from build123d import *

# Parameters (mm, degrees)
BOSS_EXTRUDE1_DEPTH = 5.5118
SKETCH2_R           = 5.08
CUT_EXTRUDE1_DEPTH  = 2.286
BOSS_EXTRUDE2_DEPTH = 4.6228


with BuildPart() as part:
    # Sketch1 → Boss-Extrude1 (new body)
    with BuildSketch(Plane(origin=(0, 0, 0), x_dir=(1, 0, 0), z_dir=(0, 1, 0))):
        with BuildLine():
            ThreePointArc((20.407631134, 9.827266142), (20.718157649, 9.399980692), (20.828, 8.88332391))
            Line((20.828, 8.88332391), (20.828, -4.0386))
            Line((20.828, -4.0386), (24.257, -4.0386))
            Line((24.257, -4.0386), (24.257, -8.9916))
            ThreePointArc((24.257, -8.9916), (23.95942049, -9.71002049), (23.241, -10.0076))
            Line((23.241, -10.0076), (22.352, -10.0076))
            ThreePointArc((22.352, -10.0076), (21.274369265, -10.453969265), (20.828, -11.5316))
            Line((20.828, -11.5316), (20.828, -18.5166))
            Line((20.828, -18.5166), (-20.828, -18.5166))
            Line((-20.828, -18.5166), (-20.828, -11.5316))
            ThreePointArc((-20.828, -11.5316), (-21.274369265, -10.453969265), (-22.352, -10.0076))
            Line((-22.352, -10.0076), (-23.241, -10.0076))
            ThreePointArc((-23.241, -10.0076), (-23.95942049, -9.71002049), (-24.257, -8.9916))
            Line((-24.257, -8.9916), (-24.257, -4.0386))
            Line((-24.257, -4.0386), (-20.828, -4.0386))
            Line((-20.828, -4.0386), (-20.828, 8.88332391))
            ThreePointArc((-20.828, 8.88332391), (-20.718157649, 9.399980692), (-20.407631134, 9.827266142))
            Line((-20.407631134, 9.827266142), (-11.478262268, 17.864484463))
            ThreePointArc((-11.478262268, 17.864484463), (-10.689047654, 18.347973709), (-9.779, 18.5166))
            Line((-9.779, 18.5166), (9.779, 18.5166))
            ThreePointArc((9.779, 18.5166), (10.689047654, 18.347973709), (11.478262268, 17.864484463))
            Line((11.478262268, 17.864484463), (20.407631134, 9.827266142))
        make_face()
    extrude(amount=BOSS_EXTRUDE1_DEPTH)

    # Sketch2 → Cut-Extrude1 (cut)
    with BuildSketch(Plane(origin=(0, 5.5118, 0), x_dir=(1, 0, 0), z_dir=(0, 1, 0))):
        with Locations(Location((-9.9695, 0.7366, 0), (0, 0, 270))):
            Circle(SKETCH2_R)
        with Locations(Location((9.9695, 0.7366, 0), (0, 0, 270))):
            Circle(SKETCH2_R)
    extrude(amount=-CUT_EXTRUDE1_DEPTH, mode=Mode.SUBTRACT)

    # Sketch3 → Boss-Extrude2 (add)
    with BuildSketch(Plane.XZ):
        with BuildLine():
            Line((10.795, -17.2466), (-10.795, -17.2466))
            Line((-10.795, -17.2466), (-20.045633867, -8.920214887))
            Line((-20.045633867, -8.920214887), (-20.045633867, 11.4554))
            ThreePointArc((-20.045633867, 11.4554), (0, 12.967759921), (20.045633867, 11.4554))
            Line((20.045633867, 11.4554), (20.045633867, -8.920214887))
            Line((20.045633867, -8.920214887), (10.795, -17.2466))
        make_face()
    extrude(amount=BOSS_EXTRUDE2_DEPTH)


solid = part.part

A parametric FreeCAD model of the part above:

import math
import FreeCAD as App
import Part
import Sketcher
Q = App.Units.Quantity

doc = App.newDocument("Part")
body = doc.addObject("PartDesign::Body", "Body")

sketch1 = doc.addObject("Sketcher::SketchObject", "Sketch")
body.addObject(sketch1)
sketch1.AttachmentSupport = (doc.XZ_Plane, [""])
sketch1.MapMode = "FlatFace"
sketch1.addGeometry(Part.ArcOfCircle(Part.Circle(App.Vector(19.6, -8.9, 0), App.Vector(0, 0, 1), 1.3), math.radians(-48), math.radians(0)), False)
sketch1.addGeometry(Part.LineSegment(App.Vector(20.4, -9.8, 0), App.Vector(11.5, -17.9, 0)), False)
sketch1.addGeometry(Part.ArcOfCircle(Part.Circle(App.Vector(9.8, -16, 0), App.Vector(0, 0, 1), 2.5), math.radians(-90), math.radians(-48)), False)
sketch1.addGeometry(Part.LineSegment(App.Vector(9.8, -18.5, 0), App.Vector(-9.8, -18.5, 0)), False)
sketch1.addGeometry(Part.ArcOfCircle(Part.Circle(App.Vector(-9.8, -16, 0), App.Vector(0, 0, 1), 2.5), math.radians(-132), math.radians(-90)), False)
sketch1.addGeometry(Part.LineSegment(App.Vector(-11.5, -17.9, 0), App.Vector(-20.4, -9.8, 0)), False)
sketch1.addGeometry(Part.ArcOfCircle(Part.Circle(App.Vector(-19.6, -8.9, 0), App.Vector(0, 0, 1), 1.3), math.radians(180), math.radians(228)), False)
sketch1.addGeometry(Part.LineSegment(App.Vector(-20.8, -8.9, 0), App.Vector(-20.8, 4, 0)), False)
sketch1.addGeometry(Part.LineSegment(App.Vector(-20.8, 4, 0), App.Vector(-24.3, 4, 0)), False)
sketch1.addGeometry(Part.LineSegment(App.Vector(-24.3, 4, 0), App.Vector(-24.3, 9, 0)), False)
sketch1.addGeometry(Part.ArcOfCircle(Part.Circle(App.Vector(-23.2, 9, 0), App.Vector(0, 0, 1), 1), math.radians(90), math.radians(180)), False)
sketch1.addGeometry(Part.LineSegment(App.Vector(-23.2, 10, 0), App.Vector(-22.4, 10, 0)), False)
sketch1.addGeometry(Part.ArcOfCircle(Part.Circle(App.Vector(-22.4, 11.5, 0), App.Vector(0, 0, 1), 1.5), math.radians(-90), math.radians(0)), False)
sketch1.addGeometry(Part.LineSegment(App.Vector(-20.8, 11.5, 0), App.Vector(-20.8, 18.5, 0)), False)
sketch1.addGeometry(Part.LineSegment(App.Vector(-20.8, 18.5, 0), App.Vector(20.8, 18.5, 0)), False)
sketch1.addGeometry(Part.LineSegment(App.Vector(20.8, 18.5, 0), App.Vector(20.8, 11.5, 0)), False)
sketch1.addGeometry(Part.ArcOfCircle(Part.Circle(App.Vector(22.4, 11.5, 0), App.Vector(0, 0, 1), 1.5), math.radians(180), math.radians(270)), False)
sketch1.addGeometry(Part.LineSegment(App.Vector(22.4, 10, 0), App.Vector(23.2, 10, 0)), False)
sketch1.addGeometry(Part.ArcOfCircle(Part.Circle(App.Vector(23.2, 9, 0), App.Vector(0, 0, 1), 1), math.radians(0), math.radians(90)), False)
sketch1.addGeometry(Part.LineSegment(App.Vector(24.3, 9, 0), App.Vector(24.3, 4, 0)), False)
sketch1.addGeometry(Part.LineSegment(App.Vector(24.3, 4, 0), App.Vector(20.8, 4, 0)), False)
sketch1.addGeometry(Part.LineSegment(App.Vector(20.8, 4, 0), App.Vector(20.8, -8.9, 0)), False)
sketch1.addConstraint(Sketcher.Constraint("Tangent", 0, 1, 1, 1))
sketch1.addConstraint(Sketcher.Constraint("Tangent", 1, 2, 2, 2))
sketch1.addConstraint(Sketcher.Constraint("Tangent", 2, 1, 3, 1))
sketch1.addConstraint(Sketcher.Constraint("Tangent", 3, 2, 4, 2))
sketch1.addConstraint(Sketcher.Constraint("Tangent", 4, 1, 5, 1))
sketch1.addConstraint(Sketcher.Constraint("Tangent", 5, 2, 6, 2))
sketch1.addConstraint(Sketcher.Constraint("Tangent", 6, 1, 7, 1))
sketch1.addConstraint(Sketcher.Constraint("Coincident", 7, 2, 8, 1))
sketch1.addConstraint(Sketcher.Constraint("Coincident", 8, 2, 9, 1))
sketch1.addConstraint(Sketcher.Constraint("Tangent", 9, 2, 10, 2))
sketch1.addConstraint(Sketcher.Constraint("Tangent", 10, 1, 11, 1))
sketch1.addConstraint(Sketcher.Constraint("Tangent", 11, 2, 12, 1))
sketch1.addConstraint(Sketcher.Constraint("Tangent", 12, 2, 13, 1))
sketch1.addConstraint(Sketcher.Constraint("Coincident", 13, 2, 14, 1))
sketch1.addConstraint(Sketcher.Constraint("Coincident", 14, 2, 15, 1))
sketch1.addConstraint(Sketcher.Constraint("Tangent", 15, 2, 16, 1))
sketch1.addConstraint(Sketcher.Constraint("Tangent", 16, 2, 17, 1))
sketch1.addConstraint(Sketcher.Constraint("Tangent", 17, 2, 18, 2))
sketch1.addConstraint(Sketcher.Constraint("Tangent", 18, 1, 19, 1))
sketch1.addConstraint(Sketcher.Constraint("Coincident", 19, 2, 20, 1))
sketch1.addConstraint(Sketcher.Constraint("Coincident", 20, 2, 21, 1))
sketch1.addConstraint(Sketcher.Constraint("Tangent", 21, 2, 0, 2))
sketch1.addConstraint(Sketcher.Constraint("Horizontal", 3))
sketch1.addConstraint(Sketcher.Constraint("Vertical", 7))
sketch1.addConstraint(Sketcher.Constraint("Horizontal", 8))
sketch1.addConstraint(Sketcher.Constraint("Vertical", 9))
sketch1.addConstraint(Sketcher.Constraint("Horizontal", 11))
sketch1.addConstraint(Sketcher.Constraint("Vertical", 13))
sketch1.addConstraint(Sketcher.Constraint("Horizontal", 14))
sketch1.addConstraint(Sketcher.Constraint("Vertical", 15))
sketch1.addConstraint(Sketcher.Constraint("Horizontal", 17))
sketch1.addConstraint(Sketcher.Constraint("Vertical", 19))
sketch1.addConstraint(Sketcher.Constraint("Horizontal", 20))
sketch1.addConstraint(Sketcher.Constraint("Vertical", 21))
sketch1.addConstraint(Sketcher.Constraint("Equal", 2, 4))
sketch1.addConstraint(Sketcher.Constraint("Equal", 0, 6))
sketch1.addConstraint(Sketcher.Constraint("Equal", 12, 16))
sketch1.addConstraint(Sketcher.Constraint("Equal", 10, 18))
sketch1.addConstraint(Sketcher.Constraint("Symmetric", 0, 3, 6, 3, -2))
sketch1.addConstraint(Sketcher.Constraint("Symmetric", 12, 3, 16, 3, -2))
sketch1.addConstraint(Sketcher.Constraint("Symmetric", 8, 2, 19, 2, -2))
sketch1.addConstraint(Sketcher.Constraint("Horizontal", 1, 2, 4, 1))
sketch1.addConstraint(Sketcher.Constraint("Vertical", 7, 2, 12, 2))
sketch1.addConstraint(Sketcher.Constraint("Radius", 2, Q("0.1 in")))
sketch1.addConstraint(Sketcher.Constraint("Radius", 0, Q("0.05 in")))
sketch1.addConstraint(Sketcher.Constraint("Radius", 10, Q("0.04 in")))
sketch1.addConstraint(Sketcher.Constraint("Radius", 12, Q("0.06 in")))
sketch1.addConstraint(Sketcher.Constraint("DistanceX", 3, 2, 3, 1, Q("0.77 in")))
sketch1.addConstraint(Sketcher.Constraint("DistanceX", 14, 1, 14, 2, Q("1.64 in")))
sketch1.addConstraint(Sketcher.Constraint("DistanceX", 10, 3, 2, 3, Q("1.3 in")))
sketch1.addConstraint(Sketcher.Constraint("DistanceY", 9, 1, 9, 2, Q("0.195 in")))
sketch1.addConstraint(Sketcher.Constraint("DistanceY", 13, 1, 13, 2, Q("0.275 in")))
sketch1.addConstraint(Sketcher.Constraint("Angle", 1, Q("-138.01 deg")))
sketch1.addConstraint(Sketcher.Constraint("DistanceY", 2, 3, -1, 1, Q("0.629 in")))
sketch1.addConstraint(Sketcher.Constraint("DistanceY", -1, 1, 10, 3, Q("0.354 in")))
pad1 = doc.addObject("PartDesign::Pad", "Pad")
body.addObject(pad1)
pad1.Profile = sketch1
pad1.Length = Q("0.217 in")
pad1.Reversed = True

sketch2 = doc.addObject("Sketcher::SketchObject", "Sketch001")
body.addObject(sketch2)
sketch2.AttachmentSupport = (doc.XZ_Plane, [""])
sketch2.MapMode = "FlatFace"
sketch2.AttachmentOffset = App.Placement(App.Vector(0, 0, -0.217 * 25.4), App.Rotation())
sketch2.addGeometry(Part.Circle(App.Vector(-10, -1, 0), App.Vector(0, 0, 1), 5), False)
sketch2.addGeometry(Part.Circle(App.Vector(10, -1, 0), App.Vector(0, 0, 1), 5), False)
sketch2.addConstraint(Sketcher.Constraint("Equal", 0, 1))
sketch2.addConstraint(Sketcher.Constraint("Symmetric", 0, 3, 1, 3, -2))
sketch2.addConstraint(Sketcher.Constraint("Diameter", 0, Q("0.4 in")))
sketch2.addConstraint(Sketcher.Constraint("DistanceY", 0, 3, -1, 1, Q("0.029 in")))
sketch2.addConstraint(Sketcher.Constraint("DistanceX", 0, 3, 1, 3, Q("0.785 in")))
pocket1 = doc.addObject("PartDesign::Pocket", "Pocket")
body.addObject(pocket1)
pocket1.Profile = sketch2
pocket1.Length = Q("0.09 in")
pocket1.Reversed = True

sketch3 = doc.addObject("Sketcher::SketchObject", "Sketch002")
body.addObject(sketch3)
sketch3.AttachmentSupport = (doc.XZ_Plane, [""])
sketch3.MapMode = "FlatFace"
sketch3.addGeometry(Part.LineSegment(App.Vector(-11, -17, 0), App.Vector(11, -17, 0)), False)
sketch3.addGeometry(Part.LineSegment(App.Vector(11, -17, 0), App.Vector(20, -9, 0)), False)
sketch3.addGeometry(Part.LineSegment(App.Vector(20, -9, 0), App.Vector(20, 11, 0)), False)
sketch3.addGeometry(Part.ArcOfCircle(Part.Circle(App.Vector(0, -121, 0), App.Vector(0, 0, 1), 134), math.radians(81.37), math.radians(98.63)), False)
sketch3.addGeometry(Part.LineSegment(App.Vector(-20, 11, 0), App.Vector(-20, -9, 0)), False)
sketch3.addGeometry(Part.LineSegment(App.Vector(-20, -9, 0), App.Vector(-11, -17, 0)), False)
sketch3.addConstraint(Sketcher.Constraint("Coincident", 0, 2, 1, 1))
sketch3.addConstraint(Sketcher.Constraint("Coincident", 1, 2, 2, 1))
sketch3.addConstraint(Sketcher.Constraint("Coincident", 2, 2, 3, 1))
sketch3.addConstraint(Sketcher.Constraint("Coincident", 3, 2, 4, 1))
sketch3.addConstraint(Sketcher.Constraint("Coincident", 4, 2, 5, 1))
sketch3.addConstraint(Sketcher.Constraint("Coincident", 5, 2, 0, 1))
sketch3.addConstraint(Sketcher.Constraint("Horizontal", 0))
sketch3.addConstraint(Sketcher.Constraint("Vertical", 2))
sketch3.addConstraint(Sketcher.Constraint("Vertical", 4))
sketch3.addConstraint(Sketcher.Constraint("Symmetric", 2, 2, 3, 2, -2))
sketch3.addConstraint(Sketcher.Constraint("Horizontal", 1, 2, 4, 2))
sketch3.addConstraint(Sketcher.Constraint("Equal", 1, 5))
sketch3.addConstraint(Sketcher.Constraint("Radius", 3, Q("5.26 in")))
sketch3.addConstraint(Sketcher.Constraint("DistanceX", 0, 1, 0, 2, Q("0.85 in")))
sketch3.addConstraint(Sketcher.Constraint("Distance", 1, Q("0.49 in")))
sketch3.addConstraint(Sketcher.Constraint("Angle", 1, Q("41.99 deg")))
sketch3.addConstraint(Sketcher.Constraint("DistanceY", 0, 2, 2, 2, Q("1.13 in")))
sketch3.addConstraint(Sketcher.Constraint("DistanceY", 0, 2, -1, 1, Q("0.679 in")))
pad2 = doc.addObject("PartDesign::Pad", "Pad001")
body.addObject(pad2)
pad2.Profile = sketch3
pad2.Length = Q("0.182 in")

doc.recompute()
